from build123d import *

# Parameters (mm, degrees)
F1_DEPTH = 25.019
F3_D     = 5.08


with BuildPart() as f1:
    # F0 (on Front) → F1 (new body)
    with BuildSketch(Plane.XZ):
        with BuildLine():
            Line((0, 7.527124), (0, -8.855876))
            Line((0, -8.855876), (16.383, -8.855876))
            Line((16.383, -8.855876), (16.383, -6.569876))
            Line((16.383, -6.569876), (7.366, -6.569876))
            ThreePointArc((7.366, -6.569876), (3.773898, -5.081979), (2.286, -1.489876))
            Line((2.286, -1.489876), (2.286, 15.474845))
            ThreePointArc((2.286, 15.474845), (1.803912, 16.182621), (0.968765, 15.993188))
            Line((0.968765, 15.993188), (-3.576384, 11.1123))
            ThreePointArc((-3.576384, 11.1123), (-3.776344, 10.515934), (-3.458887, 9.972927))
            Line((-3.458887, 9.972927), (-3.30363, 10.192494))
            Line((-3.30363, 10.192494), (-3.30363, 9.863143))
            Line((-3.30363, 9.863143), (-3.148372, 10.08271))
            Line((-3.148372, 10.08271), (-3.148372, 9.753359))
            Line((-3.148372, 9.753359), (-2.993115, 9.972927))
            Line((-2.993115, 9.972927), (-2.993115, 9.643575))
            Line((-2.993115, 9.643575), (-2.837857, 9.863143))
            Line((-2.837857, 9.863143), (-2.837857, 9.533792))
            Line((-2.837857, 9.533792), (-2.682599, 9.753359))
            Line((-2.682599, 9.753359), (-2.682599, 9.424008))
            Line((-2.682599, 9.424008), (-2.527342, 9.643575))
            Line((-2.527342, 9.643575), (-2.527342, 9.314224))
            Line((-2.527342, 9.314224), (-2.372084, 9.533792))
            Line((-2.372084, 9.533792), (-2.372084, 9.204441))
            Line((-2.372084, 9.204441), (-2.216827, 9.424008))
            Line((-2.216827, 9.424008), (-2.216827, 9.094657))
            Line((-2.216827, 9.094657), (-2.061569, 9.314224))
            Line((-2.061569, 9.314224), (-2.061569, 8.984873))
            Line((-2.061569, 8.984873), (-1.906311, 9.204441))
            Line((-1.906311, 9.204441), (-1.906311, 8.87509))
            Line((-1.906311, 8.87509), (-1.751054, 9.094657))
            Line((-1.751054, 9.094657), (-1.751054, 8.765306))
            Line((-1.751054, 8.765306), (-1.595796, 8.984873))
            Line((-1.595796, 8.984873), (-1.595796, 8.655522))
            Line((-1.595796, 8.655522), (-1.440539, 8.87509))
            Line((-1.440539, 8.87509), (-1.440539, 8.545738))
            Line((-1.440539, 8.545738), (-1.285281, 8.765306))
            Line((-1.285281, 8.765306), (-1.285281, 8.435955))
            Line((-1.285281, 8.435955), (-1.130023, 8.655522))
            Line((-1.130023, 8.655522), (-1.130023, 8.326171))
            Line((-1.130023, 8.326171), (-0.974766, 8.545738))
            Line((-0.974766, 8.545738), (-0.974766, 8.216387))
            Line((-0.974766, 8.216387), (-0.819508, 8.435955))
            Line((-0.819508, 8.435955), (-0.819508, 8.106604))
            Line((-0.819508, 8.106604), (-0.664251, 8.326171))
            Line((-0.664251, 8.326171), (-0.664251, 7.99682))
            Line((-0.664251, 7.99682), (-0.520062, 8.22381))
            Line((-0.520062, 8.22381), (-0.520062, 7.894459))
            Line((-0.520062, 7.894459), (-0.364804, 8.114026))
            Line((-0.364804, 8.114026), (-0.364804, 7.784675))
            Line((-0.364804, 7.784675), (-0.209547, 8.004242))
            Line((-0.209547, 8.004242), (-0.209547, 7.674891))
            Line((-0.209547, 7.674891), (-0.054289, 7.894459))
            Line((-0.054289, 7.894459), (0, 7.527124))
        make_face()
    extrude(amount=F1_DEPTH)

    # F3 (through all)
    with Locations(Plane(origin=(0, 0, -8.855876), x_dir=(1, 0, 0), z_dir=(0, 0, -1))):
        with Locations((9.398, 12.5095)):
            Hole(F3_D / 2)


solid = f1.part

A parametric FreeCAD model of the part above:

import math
import FreeCAD as App
import Part
import Sketcher

V = App.Vector
Q = App.Units.Quantity

doc = App.newDocument("Part")
body = doc.addObject("PartDesign::Body", "Body")

sketch1 = body.newObject("Sketcher::SketchObject", "Sketch")
sketch1.AttachmentSupport = (doc.getObject("XZ_Plane"), [""])
sketch1.MapMode = "FlatFace"
sketch1.addGeometry([
    Part.LineSegment(V(0, 7.527124, 0), V(0, -8.855876, 0)),
    Part.LineSegment(V(0, -8.855876, 0), V(16.383, -8.855876, 0)),
    Part.LineSegment(V(16.383, -8.855876, 0), V(16.383, -6.569876, 0)),
    Part.LineSegment(V(16.383, -6.569876, 0), V(7.366, -6.569876, 0)),
    Part.ArcOfCircle(Part.Circle(V(7.366, -1.489876, 0), V(0, 0, 1), 5.08), math.radians(179.999998), math.radians(270.000002)),
    Part.LineSegment(V(2.286, -1.489876, 0), V(2.286, 15.474845, 0)),
    Part.ArcOfCircle(Part.Circle(V(1.525396, 15.474845, 0), V(0, 0, 1), 0.760604), math.radians(0.000006), math.radians(137.039888)),
    Part.LineSegment(V(0.968765, 15.993188, 0), V(-3.576384, 11.1123, 0)),
    Part.ArcOfCircle(Part.Circle(V(-3.019754, 10.593957, 0), V(0, 0, 1), 0.760603), math.radians(137.039857), math.radians(234.735688)),
    Part.LineSegment(V(-3.458887, 9.972927, 0), V(-3.30363, 10.192494, 0)),
    Part.LineSegment(V(-3.30363, 10.192494, 0), V(-3.30363, 9.863143, 0)),
    Part.LineSegment(V(-3.30363, 9.863143, 0), V(-3.148372, 10.08271, 0)),
    Part.LineSegment(V(-3.148372, 10.08271, 0), V(-3.148372, 9.753359, 0)),
    Part.LineSegment(V(-3.148372, 9.753359, 0), V(-2.993115, 9.972927, 0)),
    Part.LineSegment(V(-2.993115, 9.972927, 0), V(-2.993115, 9.643575, 0)),
    Part.LineSegment(V(-2.993115, 9.643575, 0), V(-2.837857, 9.863143, 0)),
    Part.LineSegment(V(-2.837857, 9.863143, 0), V(-2.837857, 9.533792, 0)),
    Part.LineSegment(V(-2.837857, 9.533792, 0), V(-2.682599, 9.753359, 0)),
    Part.LineSegment(V(-2.682599, 9.753359, 0), V(-2.682599, 9.424008, 0)),
    Part.LineSegment(V(-2.682599, 9.424008, 0), V(-2.527342, 9.643575, 0)),
    Part.LineSegment(V(-2.527342, 9.643575, 0), V(-2.527342, 9.314224, 0)),
    Part.LineSegment(V(-2.527342, 9.314224, 0), V(-2.372084, 9.533792, 0)),
    Part.LineSegment(V(-2.372084, 9.533792, 0), V(-2.372084, 9.204441, 0)),
    Part.LineSegment(V(-2.372084, 9.204441, 0), V(-2.216827, 9.424008, 0)),
    Part.LineSegment(V(-2.216827, 9.424008, 0), V(-2.216827, 9.094657, 0)),
    Part.LineSegment(V(-2.216827, 9.094657, 0), V(-2.061569, 9.314224, 0)),
    Part.LineSegment(V(-2.061569, 9.314224, 0), V(-2.061569, 8.984873, 0)),
    Part.LineSegment(V(-2.061569, 8.984873, 0), V(-1.906311, 9.204441, 0)),
    Part.LineSegment(V(-1.906311, 9.204441, 0), V(-1.906311, 8.87509, 0)),
    Part.LineSegment(V(-1.906311, 8.87509, 0), V(-1.751054, 9.094657, 0)),
    Part.LineSegment(V(-1.751054, 9.094657, 0), V(-1.751054, 8.765306, 0)),
    Part.LineSegment(V(-1.751054, 8.765306, 0), V(-1.595796, 8.984873, 0)),
    Part.LineSegment(V(-1.595796, 8.984873, 0), V(-1.595796, 8.655522, 0)),
    Part.LineSegment(V(-1.595796, 8.655522, 0), V(-1.440539, 8.87509, 0)),
    Part.LineSegment(V(-1.440539, 8.87509, 0), V(-1.440539, 8.545738, 0)),
    Part.LineSegment(V(-1.440539, 8.545738, 0), V(-1.285281, 8.765306, 0)),
    Part.LineSegment(V(-1.285281, 8.765306, 0), V(-1.285281, 8.435955, 0)),
    Part.LineSegment(V(-1.285281, 8.435955, 0), V(-1.130023, 8.655522, 0)),
    Part.LineSegment(V(-1.130023, 8.655522, 0), V(-1.130023, 8.326171, 0)),
    Part.LineSegment(V(-1.130023, 8.326171, 0), V(-0.974766, 8.545738, 0)),
    Part.LineSegment(V(-0.974766, 8.545738, 0), V(-0.974766, 8.216387, 0)),
    Part.LineSegment(V(-0.974766, 8.216387, 0), V(-0.819508, 8.435955, 0)),
    Part.LineSegment(V(-0.819508, 8.435955, 0), V(-0.819508, 8.106604, 0)),
    Part.LineSegment(V(-0.819508, 8.106604, 0), V(-0.664251, 8.326171, 0)),
    Part.LineSegment(V(-0.664251, 8.326171, 0), V(-0.664251, 7.99682, 0)),
    Part.LineSegment(V(-0.664251, 7.99682, 0), V(-0.520062, 8.22381, 0)),
    Part.LineSegment(V(-0.520062, 8.22381, 0), V(-0.520062, 7.894459, 0)),
    Part.LineSegment(V(-0.520062, 7.894459, 0), V(-0.364804, 8.114026, 0)),
    Part.LineSegment(V(-0.364804, 8.114026, 0), V(-0.364804, 7.784675, 0)),
    Part.LineSegment(V(-0.364804, 7.784675, 0), V(-0.209547, 8.004242, 0)),
    Part.LineSegment(V(-0.209547, 8.004242, 0), V(-0.209547, 7.674891, 0)),
    Part.LineSegment(V(-0.209547, 7.674891, 0), V(-0.054289, 7.894459, 0)),
    Part.LineSegment(V(-0.054289, 7.894459, 0), V(0, 7.527124, 0)),
], False)
sketch1.addConstraint([
    Sketcher.Constraint("Coincident", 0, 2, 1, 1),
    Sketcher.Constraint("Coincident", 1, 2, 2, 1),
    Sketcher.Constraint("Coincident", 2, 2, 3, 1),
    Sketcher.Constraint("Tangent", 3, 2, 4, 2),
    Sketcher.Constraint("Tangent", 4, 1, 5, 1),
    Sketcher.Constraint("Tangent", 5, 2, 6, 1),
    Sketcher.Constraint("Tangent", 6, 2, 7, 1),
    Sketcher.Constraint("Tangent", 7, 2, 8, 1),
    Sketcher.Constraint("Coincident", 8, 2, 9, 1),
    Sketcher.Constraint("Coincident", 9, 2, 10, 1),
    Sketcher.Constraint("Coincident", 10, 2, 11, 1),
    Sketcher.Constraint("Coincident", 11, 2, 12, 1),
    Sketcher.Constraint("Coincident", 12, 2, 13, 1),
    Sketcher.Constraint("Coincident", 13, 2, 14, 1),
    Sketcher.Constraint("Coincident", 14, 2, 15, 1),
    Sketcher.Constraint("Coincident", 15, 2, 16, 1),
    Sketcher.Constraint("Coincident", 16, 2, 17, 1),
    Sketcher.Constraint("Coincident", 17, 2, 18, 1),
    Sketcher.Constraint("Coincident", 18, 2, 19, 1),
    Sketcher.Constraint("Coincident", 19, 2, 20, 1),
    Sketcher.Constraint("Coincident", 20, 2, 21, 1),
    Sketcher.Constraint("Coincident", 21, 2, 22, 1),
    Sketcher.Constraint("Coincident", 22, 2, 23, 1),
    Sketcher.Constraint("Coincident", 23, 2, 24, 1),
    Sketcher.Constraint("Coincident", 24, 2, 25, 1),
    Sketcher.Constraint("Coincident", 25, 2, 26, 1),
    Sketcher.Constraint("Coincident", 26, 2, 27, 1),
    Sketcher.Constraint("Coincident", 27, 2, 28, 1),
    Sketcher.Constraint("Coincident", 28, 2, 29, 1),
    Sketcher.Constraint("Coincident", 29, 2, 30, 1),
    Sketcher.Constraint("Coincident", 30, 2, 31, 1),
    Sketcher.Constraint("Coincident", 31, 2, 32, 1),
    Sketcher.Constraint("Coincident", 32, 2, 33, 1),
    Sketcher.Constraint("Coincident", 33, 2, 34, 1),
    Sketcher.Constraint("Coincident", 34, 2, 35, 1),
    Sketcher.Constraint("Coincident", 35, 2, 36, 1),
    Sketcher.Constraint("Coincident", 36, 2, 37, 1),
    Sketcher.Constraint("Coincident", 37, 2, 38, 1),
    Sketcher.Constraint("Coincident", 38, 2, 39, 1),
    Sketcher.Constraint("Coincident", 39, 2, 40, 1),
    Sketcher.Constraint("Coincident", 40, 2, 41, 1),
    Sketcher.Constraint("Coincident", 41, 2, 42, 1),
    Sketcher.Constraint("Coincident", 42, 2, 43, 1),
    Sketcher.Constraint("Coincident", 43, 2, 44, 1),
    Sketcher.Constraint("Coincident", 44, 2, 45, 1),
    Sketcher.Constraint("Coincident", 45, 2, 46, 1),
    Sketcher.Constraint("Coincident", 46, 2, 47, 1),
    Sketcher.Constraint("Coincident", 47, 2, 48, 1),
    Sketcher.Constraint("Coincident", 48, 2, 49, 1),
    Sketcher.Constraint("Coincident", 49, 2, 50, 1),
    Sketcher.Constraint("Coincident", 50, 2, 51, 1),
    Sketcher.Constraint("Coincident", 51, 2, 52, 1),
    Sketcher.Constraint("Coincident", 52, 2, 0, 1),
    Sketcher.Constraint("Vertical", 0),
    Sketcher.Constraint("Horizontal", 1),
    Sketcher.Constraint("Vertical", 2),
    Sketcher.Constraint("Horizontal", 3),
    Sketcher.Constraint("Vertical", 5),
    Sketcher.Constraint("Vertical", 10),
    Sketcher.Constraint("Vertical", 12),
    Sketcher.Constraint("Vertical", 14),
    Sketcher.Constraint("Vertical", 16),
    Sketcher.Constraint("Vertical", 18),
    Sketcher.Constraint("Vertical", 20),
    Sketcher.Constraint("Vertical", 22),
    Sketcher.Constraint("Vertical", 24),
    Sketcher.Constraint("Vertical", 26),
    Sketcher.Constraint("Vertical", 28),
    Sketcher.Constraint("Vertical", 30),
    Sketcher.Constraint("Vertical", 32),
    Sketcher.Constraint("Vertical", 34),
    Sketcher.Constraint("Vertical", 36),
    Sketcher.Constraint("Vertical", 38),
    Sketcher.Constraint("Vertical", 40),
    Sketcher.Constraint("Vertical", 42),
    Sketcher.Constraint("Vertical", 44),
    Sketcher.Constraint("Vertical", 46),
    Sketcher.Constraint("Vertical", 48),
    Sketcher.Constraint("Vertical", 50),
    Sketcher.Constraint("Equal", 6, 8),
    Sketcher.Constraint("PointOnObject", 0, 2, -2),
    Sketcher.Constraint("Parallel", 9, 15),
    Sketcher.Constraint("Parallel", 11, 17),
    Sketcher.Constraint("Parallel", 15, 19),
    Sketcher.Constraint("Parallel", 19, 21),
    Sketcher.Constraint("Parallel", 21, 23),
    Sketcher.Constraint("Parallel", 17, 25),
    Sketcher.Constraint("Parallel", 23, 27),
    Sketcher.Constraint("Parallel", 27, 29),
    Sketcher.Constraint("Parallel", 25, 31),
    Sketcher.Constraint("Parallel", 13, 33),
    Sketcher.Constraint("Parallel", 29, 35),
    Sketcher.Constraint("Parallel", 31, 37),
    Sketcher.Constraint("Parallel", 35, 39),
    Sketcher.Constraint("Parallel", 39, 41),
    Sketcher.Constraint("Parallel", 41, 43),
    Sketcher.Constraint("Parallel", 37, 47),
    Sketcher.Constraint("Parallel", 43, 49),
    Sketcher.Constraint("Parallel", 49, 51),
    Sketcher.Constraint("Horizontal", 8, 2, 13, 2),
    Sketcher.Constraint("Horizontal", 10, 2, 15, 2),
    Sketcher.Constraint("Horizontal", 12, 2, 17, 2),
    Sketcher.Constraint("Horizontal", 14, 2, 19, 2),
    Sketcher.Constraint("Horizontal", 16, 2, 21, 2),
    Sketcher.Constraint("Horizontal", 18, 2, 23, 2),
    Sketcher.Constraint("Horizontal", 20, 2, 25, 2),
    Sketcher.Constraint("Horizontal", 22, 2, 27, 2),
    Sketcher.Constraint("Horizontal", 24, 2, 29, 2),
    Sketcher.Constraint("Horizontal", 26, 2, 31, 2),
    Sketcher.Constraint("Horizontal", 28, 2, 33, 2),
    Sketcher.Constraint("Horizontal", 30, 2, 35, 2),
    Sketcher.Constraint("Horizontal", 32, 2, 37, 2),
    Sketcher.Constraint("Horizontal", 34, 2, 39, 2),
    Sketcher.Constraint("Horizontal", 36, 2, 41, 2),
    Sketcher.Constraint("Horizontal", 38, 2, 43, 2),
    Sketcher.Constraint("Horizontal", 46, 2, 51, 2),
    Sketcher.Constraint("Equal", 1, 0),
    Sketcher.Constraint("Equal", 10, 12),
    Sketcher.Constraint("Equal", 12, 14),
    Sketcher.Constraint("Equal", 14, 16),
    Sketcher.Constraint("Equal", 16, 18),
    Sketcher.Constraint("Equal", 18, 20),
    Sketcher.Constraint("Equal", 20, 22),
    Sketcher.Constraint("Equal", 22, 24),
    Sketcher.Constraint("Equal", 24, 26),
    Sketcher.Constraint("Equal", 26, 28),
    Sketcher.Constraint("Equal", 28, 30),
    Sketcher.Constraint("Equal", 30, 32),
    Sketcher.Constraint("Equal", 32, 34),
    Sketcher.Constraint("Equal", 34, 36),
    Sketcher.Constraint("Equal", 36, 38),
    Sketcher.Constraint("Equal", 38, 40),
    Sketcher.Constraint("Equal", 40, 42),
    Sketcher.Constraint("Equal", 42, 44),
    Sketcher.Constraint("Equal", 44, 46),
    Sketcher.Constraint("Equal", 46, 48),
    Sketcher.Constraint("Equal", 48, 50),
    Sketcher.Constraint("Equal", 9, 11),
    Sketcher.Constraint("Equal", 11, 13),
    Sketcher.Constraint("Equal", 17, 19),
    Sketcher.Constraint("Equal", 21, 23),
    Sketcher.Constraint("Equal", 43, 45),
    Sketcher.Constraint("Equal", 45, 47),
    Sketcher.Constraint("Equal", 47, 49),
    Sketcher.Constraint("Radius", 4, Q("0.2 in")),
    Sketcher.Constraint("DistanceY", 2, 1, 2, 2, Q("0.09 in")),
    Sketcher.Constraint("DistanceX", 1, 1, 1, 2, Q("0.645 in")),
    Sketcher.Constraint("DistanceX", 3, 2, 3, 1, Q("0.355 in")),
    Sketcher.Constraint("Radius", 6, 0.760604),
    Sketcher.Constraint("DistanceY", 5, 1, 5, 2, 16.964721),
    Sketcher.Constraint("DistanceY", 10, 2, 10, 1, 0.329351),
    Sketcher.Constraint("DistanceY", -1, 1, 7, 2, 11.1123),
    Sketcher.Constraint("DistanceX", 17, 2, -1, 1, 2.682599),
    Sketcher.Constraint("DistanceY", 10, 2, 6, 3, 5.611702),
    Sketcher.Constraint("DistanceY", 12, 2, 8, 3, 0.840598),
    Sketcher.Constraint("Distance", 7, 6.669441),
    Sketcher.Constraint("DistanceY", -1, 1, 45, 2, 8.22381),
])
pad1 = body.newObject("PartDesign::Pad", "Pad")
pad1.Profile = sketch1
pad1.Length = Q("0.985 in")

sketch2 = body.newObject("Sketcher::SketchObject", "Sketch001")
sketch2.AttachmentSupport = (doc.getObject("XY_Plane"), [""])
sketch2.MapMode = "FlatFace"
sketch2.AttachmentOffset = App.Placement(V(0, 0, -8.855876), App.Rotation())
sketch2.addGeometry(Part.Circle(V(9.398, -12.5095, 0), V(0, 0, 1), 2.54), False)
sketch2.addConstraint([
    Sketcher.Constraint("Diameter", 0, Q("0.2 in")),
    Sketcher.Constraint("DistanceX", -1, 1, 0, 3, Q("0.37 in")),
    Sketcher.Constraint("DistanceY", 0, 3, -1, 1, Q("0.4925 in")),
])
doc.recompute()
hole = body.newObject("PartDesign::Hole", "Hole")
hole.Profile = sketch2
hole.ThreadType = "None"
hole.Diameter = Q("0.2 in")
hole.DepthType = "ThroughAll"
hole.Reversed = True

doc.recompute()
